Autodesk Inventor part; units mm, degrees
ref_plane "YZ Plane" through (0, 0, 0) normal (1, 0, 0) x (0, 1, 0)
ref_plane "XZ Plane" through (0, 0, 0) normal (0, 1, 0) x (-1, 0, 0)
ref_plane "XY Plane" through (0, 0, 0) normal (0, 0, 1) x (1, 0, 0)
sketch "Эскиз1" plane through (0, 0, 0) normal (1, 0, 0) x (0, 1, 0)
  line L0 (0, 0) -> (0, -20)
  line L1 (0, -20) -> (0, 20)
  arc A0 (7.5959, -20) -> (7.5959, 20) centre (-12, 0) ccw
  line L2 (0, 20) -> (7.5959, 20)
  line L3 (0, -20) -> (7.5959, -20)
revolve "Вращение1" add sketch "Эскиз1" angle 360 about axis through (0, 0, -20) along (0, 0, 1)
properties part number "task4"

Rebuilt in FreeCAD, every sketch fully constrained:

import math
import FreeCAD as App
import Part
import Sketcher

V = App.Vector

doc = App.newDocument("Part")
body = doc.addObject("PartDesign::Body", "Body")

# Sketch on YZ plane
sketch1 = body.newObject("Sketcher::SketchObject", "Sketch")
sketch1.AttachmentSupport = (doc.getObject("YZ_Plane"), [""])
sketch1.MapMode = "FlatFace"
sketch1.addGeometry([
    Part.LineSegment(V(0, 20, 0), V(0, -20, 0)),
    Part.LineSegment(V(0, -20, 0), V(8, -20, 0)),
    Part.ArcOfCircle(Part.Circle(V(-12, 0, 0), V(0, 0, 1), 28), math.radians(-46), math.radians(46)),
    Part.LineSegment(V(8, 20, 0), V(0, 20, 0)),
], False)
sketch1.addConstraint([
    Sketcher.Constraint("Coincident", 0, 2, 1, 1),
    Sketcher.Constraint("Coincident", 1, 2, 2, 1),
    Sketcher.Constraint("Coincident", 2, 2, 3, 1),
    Sketcher.Constraint("Coincident", 3, 2, 0, 1),
    Sketcher.Constraint("Vertical", 0),
    Sketcher.Constraint("Horizontal", 1),
    Sketcher.Constraint("Horizontal", 3),
    Sketcher.Constraint("Symmetric", 0, 2, 3, 2, -1, 1),
    Sketcher.Constraint("PointOnObject", 2, 3, -1),
    Sketcher.Constraint("Radius", 2, 28.0),
    Sketcher.Constraint("DistanceY", 0, 2, 0, 1, 40.0),
    Sketcher.Constraint("DistanceX", 2, 3, -1, 1, 12.0),
])
revolution = body.newObject("PartDesign::Revolution", "Revolution")
revolution.Profile = sketch1
revolution.ReferenceAxis = (sketch1, ["V_Axis"])
revolution.Angle = 360

doc.recompute()
